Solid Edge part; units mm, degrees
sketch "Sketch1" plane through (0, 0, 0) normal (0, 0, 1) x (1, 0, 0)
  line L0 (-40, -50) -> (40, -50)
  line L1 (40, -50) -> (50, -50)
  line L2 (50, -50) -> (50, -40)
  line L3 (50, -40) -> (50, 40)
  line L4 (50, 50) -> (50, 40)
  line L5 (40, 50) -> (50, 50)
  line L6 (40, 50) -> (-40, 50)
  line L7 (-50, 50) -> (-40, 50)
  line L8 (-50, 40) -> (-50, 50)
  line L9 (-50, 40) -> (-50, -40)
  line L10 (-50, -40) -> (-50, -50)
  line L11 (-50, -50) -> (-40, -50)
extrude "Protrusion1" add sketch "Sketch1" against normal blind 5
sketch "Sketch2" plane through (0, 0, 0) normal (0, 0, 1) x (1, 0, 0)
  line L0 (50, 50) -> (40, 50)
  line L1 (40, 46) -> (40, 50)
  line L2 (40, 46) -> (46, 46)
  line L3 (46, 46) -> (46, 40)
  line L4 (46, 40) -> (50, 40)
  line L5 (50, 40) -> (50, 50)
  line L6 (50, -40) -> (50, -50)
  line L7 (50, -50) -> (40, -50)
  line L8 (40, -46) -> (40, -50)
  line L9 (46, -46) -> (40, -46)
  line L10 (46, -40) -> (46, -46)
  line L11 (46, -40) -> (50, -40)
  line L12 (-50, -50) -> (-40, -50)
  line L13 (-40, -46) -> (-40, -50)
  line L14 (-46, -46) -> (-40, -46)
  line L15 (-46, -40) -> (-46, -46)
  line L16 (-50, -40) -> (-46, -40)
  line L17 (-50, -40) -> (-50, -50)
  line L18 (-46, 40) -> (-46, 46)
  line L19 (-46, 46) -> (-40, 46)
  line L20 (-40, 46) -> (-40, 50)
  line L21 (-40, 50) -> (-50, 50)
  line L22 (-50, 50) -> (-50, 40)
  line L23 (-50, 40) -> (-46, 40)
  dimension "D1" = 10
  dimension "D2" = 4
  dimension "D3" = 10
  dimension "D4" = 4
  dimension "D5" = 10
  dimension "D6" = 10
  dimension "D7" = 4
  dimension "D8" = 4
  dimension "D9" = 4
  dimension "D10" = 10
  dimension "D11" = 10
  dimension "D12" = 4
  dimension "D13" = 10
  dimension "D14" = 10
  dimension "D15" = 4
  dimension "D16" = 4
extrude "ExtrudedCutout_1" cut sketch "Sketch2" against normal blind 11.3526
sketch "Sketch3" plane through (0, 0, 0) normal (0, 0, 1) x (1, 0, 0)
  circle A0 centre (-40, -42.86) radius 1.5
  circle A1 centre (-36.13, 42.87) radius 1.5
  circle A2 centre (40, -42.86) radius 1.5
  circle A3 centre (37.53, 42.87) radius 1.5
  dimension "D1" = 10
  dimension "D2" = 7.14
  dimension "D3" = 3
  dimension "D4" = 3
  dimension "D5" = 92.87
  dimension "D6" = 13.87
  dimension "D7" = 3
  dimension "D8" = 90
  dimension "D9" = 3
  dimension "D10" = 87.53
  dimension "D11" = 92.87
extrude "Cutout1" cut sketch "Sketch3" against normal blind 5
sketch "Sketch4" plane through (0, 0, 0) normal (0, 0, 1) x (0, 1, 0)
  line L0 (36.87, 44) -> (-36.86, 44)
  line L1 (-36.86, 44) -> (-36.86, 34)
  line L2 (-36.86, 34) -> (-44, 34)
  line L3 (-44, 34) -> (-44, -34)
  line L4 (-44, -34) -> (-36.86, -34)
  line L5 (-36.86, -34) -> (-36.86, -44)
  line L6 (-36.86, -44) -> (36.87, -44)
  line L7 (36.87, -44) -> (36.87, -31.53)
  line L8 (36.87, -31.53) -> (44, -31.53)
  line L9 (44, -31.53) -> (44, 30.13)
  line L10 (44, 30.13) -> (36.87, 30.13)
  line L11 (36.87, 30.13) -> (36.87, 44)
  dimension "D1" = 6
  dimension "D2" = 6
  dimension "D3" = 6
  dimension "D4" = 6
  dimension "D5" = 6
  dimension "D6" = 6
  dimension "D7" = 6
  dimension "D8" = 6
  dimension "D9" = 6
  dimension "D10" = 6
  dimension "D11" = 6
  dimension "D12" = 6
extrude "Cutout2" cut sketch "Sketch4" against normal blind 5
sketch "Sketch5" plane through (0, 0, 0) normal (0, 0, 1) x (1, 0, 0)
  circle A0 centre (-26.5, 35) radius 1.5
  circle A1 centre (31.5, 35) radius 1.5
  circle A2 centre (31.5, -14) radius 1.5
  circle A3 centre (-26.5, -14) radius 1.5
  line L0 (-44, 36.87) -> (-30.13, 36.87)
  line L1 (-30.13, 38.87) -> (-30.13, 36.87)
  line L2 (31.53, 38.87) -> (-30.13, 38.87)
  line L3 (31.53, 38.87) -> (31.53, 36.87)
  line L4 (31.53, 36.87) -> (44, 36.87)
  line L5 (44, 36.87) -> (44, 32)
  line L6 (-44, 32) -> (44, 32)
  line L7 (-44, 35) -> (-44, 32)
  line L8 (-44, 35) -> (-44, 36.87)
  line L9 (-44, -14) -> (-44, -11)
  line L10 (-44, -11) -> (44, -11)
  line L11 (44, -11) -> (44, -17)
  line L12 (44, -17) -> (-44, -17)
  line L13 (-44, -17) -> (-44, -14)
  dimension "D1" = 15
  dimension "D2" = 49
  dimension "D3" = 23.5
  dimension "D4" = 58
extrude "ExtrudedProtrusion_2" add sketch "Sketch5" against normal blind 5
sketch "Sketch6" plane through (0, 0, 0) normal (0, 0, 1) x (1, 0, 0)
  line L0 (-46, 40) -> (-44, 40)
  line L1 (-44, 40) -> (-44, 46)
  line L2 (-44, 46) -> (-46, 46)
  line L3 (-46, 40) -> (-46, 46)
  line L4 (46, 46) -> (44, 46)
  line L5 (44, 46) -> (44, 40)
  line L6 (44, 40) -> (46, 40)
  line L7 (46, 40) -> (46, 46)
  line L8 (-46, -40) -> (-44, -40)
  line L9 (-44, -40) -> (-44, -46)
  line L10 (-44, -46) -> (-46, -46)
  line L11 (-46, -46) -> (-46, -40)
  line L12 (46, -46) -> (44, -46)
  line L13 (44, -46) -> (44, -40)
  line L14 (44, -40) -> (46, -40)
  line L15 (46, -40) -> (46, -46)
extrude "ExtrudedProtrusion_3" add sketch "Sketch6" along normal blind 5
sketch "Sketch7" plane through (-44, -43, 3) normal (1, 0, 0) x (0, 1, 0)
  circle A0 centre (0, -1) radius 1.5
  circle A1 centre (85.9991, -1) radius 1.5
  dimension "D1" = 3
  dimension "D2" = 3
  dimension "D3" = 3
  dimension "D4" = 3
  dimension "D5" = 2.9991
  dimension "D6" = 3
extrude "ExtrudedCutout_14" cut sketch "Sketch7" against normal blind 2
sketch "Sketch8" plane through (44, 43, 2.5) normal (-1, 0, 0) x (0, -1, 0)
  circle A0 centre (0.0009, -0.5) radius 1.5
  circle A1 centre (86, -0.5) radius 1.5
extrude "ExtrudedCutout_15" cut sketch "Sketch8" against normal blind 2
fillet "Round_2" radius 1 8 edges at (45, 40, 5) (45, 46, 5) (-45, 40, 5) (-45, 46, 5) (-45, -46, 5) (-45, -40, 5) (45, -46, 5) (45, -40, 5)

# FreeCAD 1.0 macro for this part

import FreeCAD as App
import Part
import Sketcher
Q = App.Units.Quantity


def edges_at(feature, points):
    """Names of the edges that pass closest to the given points."""
    edges = feature.Shape.Edges
    near = lambda p: min(range(len(edges)), key=lambda i: edges[i].distToShape(Part.Vertex(*p))[0])
    return sorted({f"Edge{near(p) + 1}" for p in points})


def add_polygon(sketch, points):
    """Adds a closed chain of lines whose ends are joined by coincident constraints."""
    first, n = sketch.GeometryCount, len(points)
    for a, b in zip(points, points[1:] + points[:1]):
        sketch.addGeometry(Part.LineSegment(App.Vector(*a, 0), App.Vector(*b, 0)), False)
    for i in range(n):
        sketch.addConstraint(Sketcher.Constraint("Coincident", first + i, 2, first + (i + 1) % n, 1))

doc = App.newDocument("Part")
params = doc.addObject("Spreadsheet::Sheet", "Params")
for row, (alias, value) in enumerate([
    ("sketch1_width", "100 mm"),
    ("pad1_length", "5 mm"),
    ("pocket1_length", "11.3526 mm"),
    ("sketch3_diameter", "3 mm"),
    ("pocket2_length", "5 mm"),
    ("sketch4_width", "10 mm"),
    ("sketch4_width2", "68 mm"),
    ("sketch4_width3", "13.87 mm"),
    ("sketch4_width4", "12.47 mm"),
    ("sketch4_height", "73.73 mm"),
    ("pocket3_length", "5 mm"),
    ("sketch5_diameter", "3 mm"),
    ("sketch5_width", "88 mm"),
    ("sketch5_height", "2 mm"),
    ("sketch5_height2", "6 mm"),
    ("sketch5_width2", "13.87 mm"),
    ("pad2_length", "5 mm"),
    ("sketch6_width", "2 mm"),
    ("sketch6_height", "6 mm"),
    ("pad3_length", "5 mm"),
    ("sketch7_diameter", "3 mm"),
    ("pocket4_length", "2 mm"),
    ("sketch8_diameter", "3 mm"),
    ("pocket5_length", "2 mm"),
    ("fillet_radius", "1 mm"),
], start=1):
    params.set(f"A{row}", alias)
    params.set(f"B{row}", "=" + value)
    params.setAlias(f"B{row}", alias)

body = doc.addObject("PartDesign::Body", "Body")

# Sketch on XY plane
sketch1 = body.newObject("Sketcher::SketchObject", "Sketch")
sketch1.AttachmentSupport = (doc.getObject("XY_Plane"), [""])
sketch1.MapMode = "FlatFace"
add_polygon(sketch1, [(-50, -50), (50, -50), (50, 50), (-50, 50)])  # lines 0-3
sketch1.addConstraint(Sketcher.Constraint("Horizontal", 0))
sketch1.addConstraint(Sketcher.Constraint("Vertical", 1))
sketch1.addConstraint(Sketcher.Constraint("Horizontal", 2))
sketch1.addConstraint(Sketcher.Constraint("Vertical", 3))
sketch1.addConstraint(Sketcher.Constraint("Symmetric", 0, 2, 2, 2, -1, 1))
sketch1.addConstraint(Sketcher.Constraint("Equal", 2, 1))
sketch1.addConstraint(Sketcher.Constraint("DistanceX", 0, 1, 0, 2, Q("100 mm")))
sketch1.setExpression("Constraints[10]", "Params.sketch1_width")
pad1 = body.newObject("PartDesign::Pad", "Pad")
pad1.Profile = sketch1
pad1.setExpression("Length", "Params.pad1_length")
pad1.Reversed = True

# Sketch on XY plane
sketch2 = body.newObject("Sketcher::SketchObject", "Sketch001")
sketch2.AttachmentSupport = (doc.getObject("XY_Plane"), [""])
sketch2.MapMode = "FlatFace"
add_polygon(sketch2, [(50, 40), (50, 50), (40, 50), (40, 46), (46, 46), (46, 40)])  # lines 0-5
add_polygon(sketch2, [(50, -50), (50, -40), (46, -40), (46, -46), (40, -46), (40, -50)])  # lines 6-11
add_polygon(sketch2, [(-50, -40), (-50, -50), (-40, -50), (-40, -46), (-46, -46), (-46, -40)])  # lines 12-17
add_polygon(sketch2, [(-50, 40), (-46, 40), (-46, 46), (-40, 46), (-40, 50), (-50, 50)])  # lines 18-23
sketch2.addConstraint(Sketcher.Constraint("Vertical", 0))
sketch2.addConstraint(Sketcher.Constraint("Horizontal", 1))
sketch2.addConstraint(Sketcher.Constraint("Vertical", 2))
sketch2.addConstraint(Sketcher.Constraint("Horizontal", 3))
sketch2.addConstraint(Sketcher.Constraint("Vertical", 4))
sketch2.addConstraint(Sketcher.Constraint("Horizontal", 5))
sketch2.addConstraint(Sketcher.Constraint("Vertical", 6))
sketch2.addConstraint(Sketcher.Constraint("Horizontal", 7))
sketch2.addConstraint(Sketcher.Constraint("Vertical", 8))
sketch2.addConstraint(Sketcher.Constraint("Horizontal", 9))
sketch2.addConstraint(Sketcher.Constraint("Vertical", 10))
sketch2.addConstraint(Sketcher.Constraint("Horizontal", 11))
sketch2.addConstraint(Sketcher.Constraint("Vertical", 12))
sketch2.addConstraint(Sketcher.Constraint("Horizontal", 13))
sketch2.addConstraint(Sketcher.Constraint("Vertical", 14))
sketch2.addConstraint(Sketcher.Constraint("Horizontal", 15))
sketch2.addConstraint(Sketcher.Constraint("Vertical", 16))
sketch2.addConstraint(Sketcher.Constraint("Horizontal", 17))
sketch2.addConstraint(Sketcher.Constraint("Horizontal", 18))
sketch2.addConstraint(Sketcher.Constraint("Vertical", 19))
sketch2.addConstraint(Sketcher.Constraint("Horizontal", 20))
sketch2.addConstraint(Sketcher.Constraint("Vertical", 21))
sketch2.addConstraint(Sketcher.Constraint("Horizontal", 22))
sketch2.addConstraint(Sketcher.Constraint("Vertical", 23))
sketch2.addConstraint(Sketcher.Constraint("Symmetric", 0, 2, 12, 2, -1, 1))
sketch2.addConstraint(Sketcher.Constraint("Symmetric", 2, 2, 14, 2, -1, 1))
sketch2.addConstraint(Sketcher.Constraint("Symmetric", 4, 2, 16, 2, -1, 1))
sketch2.addConstraint(Sketcher.Constraint("Symmetric", 7, 2, 18, 2, -1, 1))
sketch2.addConstraint(Sketcher.Constraint("Symmetric", 9, 2, 20, 2, -1, 1))
sketch2.addConstraint(Sketcher.Constraint("Symmetric", 11, 2, 22, 2, -1, 1))
sketch2.addConstraint(Sketcher.Constraint("Symmetric", 11, 2, 12, 2, -2))
sketch2.addConstraint(Sketcher.Constraint("Symmetric", 9, 2, 14, 2, -2))
sketch2.addConstraint(Sketcher.Constraint("Symmetric", 7, 2, 16, 2, -2))
sketch2.addConstraint(Sketcher.Constraint("Equal", 22, 0))
sketch2.addConstraint(Sketcher.Constraint("Equal", 18, 2))
sketch2.addConstraint(Sketcher.Constraint("DistanceX", -1, 1, 0, 2, Q("50 mm")))
sketch2.addConstraint(Sketcher.Constraint("DistanceY", -1, 1, 0, 2, Q("50 mm")))
sketch2.addConstraint(Sketcher.Constraint("DistanceX", -1, 1, 1, 2, Q("40 mm")))
sketch2.addConstraint(Sketcher.Constraint("DistanceY", -1, 1, 2, 2, Q("46 mm")))
pocket1 = body.newObject("PartDesign::Pocket", "Pocket")
pocket1.Profile = sketch2
pocket1.setExpression("Length", "Params.pocket1_length")

# Sketch on XY plane
sketch3 = body.newObject("Sketcher::SketchObject", "Sketch002")
sketch3.AttachmentSupport = (doc.getObject("XY_Plane"), [""])
sketch3.MapMode = "FlatFace"
sketch3.addGeometry(Part.Circle(App.Vector(-40, -42.9, 0), App.Vector(0, 0, 1), 1.5), False)
sketch3.addGeometry(Part.Circle(App.Vector(-36.1, 42.9, 0), App.Vector(0, 0, 1), 1.5), False)
sketch3.addGeometry(Part.Circle(App.Vector(40, -42.9, 0), App.Vector(0, 0, 1), 1.5), False)
sketch3.addGeometry(Part.Circle(App.Vector(37.5, 42.9, 0), App.Vector(0, 0, 1), 1.5), False)
sketch3.addConstraint(Sketcher.Constraint("Equal", 0, 1))
sketch3.addConstraint(Sketcher.Constraint("Equal", 1, 2))
sketch3.addConstraint(Sketcher.Constraint("Equal", 2, 3))
sketch3.addConstraint(Sketcher.Constraint("Symmetric", 0, 3, 2, 3, -2))
sketch3.addConstraint(Sketcher.Constraint("Horizontal", 1, 3, 3, 3))
sketch3.addConstraint(Sketcher.Constraint("Diameter", 0, Q("3 mm")))
sketch3.addConstraint(Sketcher.Constraint("DistanceX", 0, 3, -1, 1, Q("40 mm")))
sketch3.addConstraint(Sketcher.Constraint("DistanceY", 0, 3, -1, 1, Q("42.86 mm")))
sketch3.addConstraint(Sketcher.Constraint("DistanceX", 1, 3, -1, 1, Q("36.13 mm")))
sketch3.addConstraint(Sketcher.Constraint("DistanceY", -1, 1, 1, 3, Q("42.87 mm")))
sketch3.addConstraint(Sketcher.Constraint("DistanceX", -1, 1, 3, 3, Q("37.53 mm")))
sketch3.setExpression("Constraints[5]", "Params.sketch3_diameter")
pocket2 = body.newObject("PartDesign::Pocket", "Pocket001")
pocket2.Profile = sketch3
pocket2.setExpression("Length", "Params.pocket2_length")

# Sketch on XY plane
sketch4 = body.newObject("Sketcher::SketchObject", "Sketch003")
sketch4.AttachmentSupport = (doc.getObject("XY_Plane"), [""])
sketch4.MapMode = "FlatFace"
add_polygon(sketch4, [(-30, 37), (-44, 37), (-44, -37), (-34, -37), (-34, -44), (34, -44), (34, -37), (44, -37), (44, 37), (32, 37), (32, 44), (-30, 44)])  # lines 0-11
sketch4.addConstraint(Sketcher.Constraint("Horizontal", 0))
sketch4.addConstraint(Sketcher.Constraint("Vertical", 1))
sketch4.addConstraint(Sketcher.Constraint("Horizontal", 2))
sketch4.addConstraint(Sketcher.Constraint("Vertical", 3))
sketch4.addConstraint(Sketcher.Constraint("Horizontal", 4))
sketch4.addConstraint(Sketcher.Constraint("Vertical", 5))
sketch4.addConstraint(Sketcher.Constraint("Horizontal", 6))
sketch4.addConstraint(Sketcher.Constraint("Vertical", 7))
sketch4.addConstraint(Sketcher.Constraint("Horizontal", 8))
sketch4.addConstraint(Sketcher.Constraint("Vertical", 9))
sketch4.addConstraint(Sketcher.Constraint("Horizontal", 10))
sketch4.addConstraint(Sketcher.Constraint("Vertical", 11))
sketch4.addConstraint(Sketcher.Constraint("Symmetric", 2, 2, 5, 2, -2))
sketch4.addConstraint(Sketcher.Constraint("Symmetric", 0, 2, 7, 2, -2))
sketch4.addConstraint(Sketcher.Constraint("DistanceX", 2, 1, 2, 2, Q("10 mm")))
sketch4.addConstraint(Sketcher.Constraint("DistanceX", 4, 1, 4, 2, Q("68 mm")))
sketch4.addConstraint(Sketcher.Constraint("DistanceY", 3, 2, -1, 1, Q("44 mm")))
sketch4.addConstraint(Sketcher.Constraint("DistanceY", -1, 1, 9, 2, Q("44 mm")))
sketch4.addConstraint(Sketcher.Constraint("DistanceX", 0, 2, 0, 1, Q("13.87 mm")))
sketch4.addConstraint(Sketcher.Constraint("DistanceX", 8, 2, 8, 1, Q("12.47 mm")))
sketch4.addConstraint(Sketcher.Constraint("DistanceY", 1, 2, 1, 1, Q("73.73 mm")))
sketch4.addConstraint(Sketcher.Constraint("DistanceY", 3, 2, 3, 1, Q("7.14 mm")))
sketch4.setExpression("Constraints[26]", "Params.sketch4_width")
sketch4.setExpression("Constraints[27]", "Params.sketch4_width2")
sketch4.setExpression("Constraints[30]", "Params.sketch4_width3")
sketch4.setExpression("Constraints[31]", "Params.sketch4_width4")
sketch4.setExpression("Constraints[32]", "Params.sketch4_height")
pocket3 = body.newObject("PartDesign::Pocket", "Pocket002")
pocket3.Profile = sketch4
pocket3.setExpression("Length", "Params.pocket3_length")

# Sketch on XY plane
sketch5 = body.newObject("Sketcher::SketchObject", "Sketch004")
sketch5.AttachmentSupport = (doc.getObject("XY_Plane"), [""])
sketch5.MapMode = "FlatFace"
add_polygon(sketch5, [(-30.1, 36.9), (-44, 36.9), (-44, 32), (44, 32), (44, 36.9), (31.5, 36.9), (31.5, 38.9), (-30.1, 38.9)])  # lines 0-7
sketch5.addGeometry(Part.Circle(App.Vector(-26.5, 35, 0), App.Vector(0, 0, 1), 1.5), False)  # 8
sketch5.addGeometry(Part.Circle(App.Vector(31.5, 35, 0), App.Vector(0, 0, 1), 1.5), False)  # 9
add_polygon(sketch5, [(-44, -11), (-44, -17), (44, -17), (44, -11)])  # lines 10-13
sketch5.addGeometry(Part.Circle(App.Vector(-26.5, -14, 0), App.Vector(0, 0, 1), 1.5), False)  # 14
sketch5.addGeometry(Part.Circle(App.Vector(31.5, -14, 0), App.Vector(0, 0, 1), 1.5), False)  # 15
sketch5.addConstraint(Sketcher.Constraint("Horizontal", 0))
sketch5.addConstraint(Sketcher.Constraint("Vertical", 1))
sketch5.addConstraint(Sketcher.Constraint("Horizontal", 2))
sketch5.addConstraint(Sketcher.Constraint("Vertical", 3))
sketch5.addConstraint(Sketcher.Constraint("Horizontal", 4))
sketch5.addConstraint(Sketcher.Constraint("Vertical", 5))
sketch5.addConstraint(Sketcher.Constraint("Horizontal", 6))
sketch5.addConstraint(Sketcher.Constraint("Vertical", 7))
sketch5.addConstraint(Sketcher.Constraint("Vertical", 10))
sketch5.addConstraint(Sketcher.Constraint("Horizontal", 11))
sketch5.addConstraint(Sketcher.Constraint("Vertical", 12))
sketch5.addConstraint(Sketcher.Constraint("Horizontal", 13))
sketch5.addConstraint(Sketcher.Constraint("Equal", 8, 9))
sketch5.addConstraint(Sketcher.Constraint("Equal", 9, 14))
sketch5.addConstraint(Sketcher.Constraint("Equal", 14, 15))
sketch5.addConstraint(Sketcher.Constraint("Symmetric", 0, 2, 3, 2, -2))
sketch5.addConstraint(Sketcher.Constraint("Horizontal", 8, 3, 9, 3))
sketch5.addConstraint(Sketcher.Constraint("Horizontal", 14, 3, 15, 3))
sketch5.addConstraint(Sketcher.Constraint("Vertical", 8, 3, 14, 3))
sketch5.addConstraint(Sketcher.Constraint("Vertical", 9, 3, 15, 3))
sketch5.addConstraint(Sketcher.Constraint("Vertical", 1, 2, 10, 2))
sketch5.addConstraint(Sketcher.Constraint("Vertical", 3, 2, 11, 2))
sketch5.addConstraint(Sketcher.Constraint("Diameter", 8, Q("3 mm")))
sketch5.addConstraint(Sketcher.Constraint("DistanceX", 8, 3, -1, 1, Q("26.5 mm")))
sketch5.addConstraint(Sketcher.Constraint("DistanceX", 2, 1, 2, 2, Q("88 mm")))
sketch5.addConstraint(Sketcher.Constraint("DistanceY", 5, 1, 5, 2, Q("2 mm")))
sketch5.addConstraint(Sketcher.Constraint("DistanceY", 10, 2, 10, 1, Q("6 mm")))
sketch5.addConstraint(Sketcher.Constraint("DistanceY", -1, 1, 8, 3, Q("35 mm")))
sketch5.addConstraint(Sketcher.Constraint("DistanceY", 14, 3, -1, 1, Q("14 mm")))
sketch5.addConstraint(Sketcher.Constraint("DistanceY", -1, 1, 1, 2, Q("32 mm")))
sketch5.addConstraint(Sketcher.Constraint("DistanceY", 10, 2, -1, 1, Q("17 mm")))
sketch5.addConstraint(Sketcher.Constraint("DistanceX", 8, 3, 9, 3, Q("58 mm")))
sketch5.addConstraint(Sketcher.Constraint("DistanceX", 0, 2, 0, 1, Q("13.87 mm")))
sketch5.addConstraint(Sketcher.Constraint("DistanceX", 4, 2, 4, 1, Q("12.47 mm")))
sketch5.addConstraint(Sketcher.Constraint("DistanceY", 1, 2, 1, 1, Q("4.87 mm")))
sketch5.setExpression("Constraints[34]", "Params.sketch5_diameter")
sketch5.setExpression("Constraints[36]", "Params.sketch5_width")
sketch5.setExpression("Constraints[37]", "Params.sketch5_height")
sketch5.setExpression("Constraints[38]", "Params.sketch5_height2")
sketch5.setExpression("Constraints[44]", "Params.sketch5_width2")
pad2 = body.newObject("PartDesign::Pad", "Pad001")
pad2.Profile = sketch5
pad2.setExpression("Length", "Params.pad2_length")
pad2.Reversed = True

# Sketch on XY plane
sketch6 = body.newObject("Sketcher::SketchObject", "Sketch005")
sketch6.AttachmentSupport = (doc.getObject("XY_Plane"), [""])
sketch6.MapMode = "FlatFace"
add_polygon(sketch6, [(-46, 46), (-46, 40), (-44, 40), (-44, 46)])  # lines 0-3
add_polygon(sketch6, [(46, 40), (46, 46), (44, 46), (44, 40)])  # lines 4-7
add_polygon(sketch6, [(-44, -40), (-46, -40), (-46, -46), (-44, -46)])  # lines 8-11
add_polygon(sketch6, [(44, -46), (46, -46), (46, -40), (44, -40)])  # lines 12-15
sketch6.addConstraint(Sketcher.Constraint("Vertical", 0))
sketch6.addConstraint(Sketcher.Constraint("Horizontal", 1))
sketch6.addConstraint(Sketcher.Constraint("Vertical", 2))
sketch6.addConstraint(Sketcher.Constraint("Horizontal", 3))
sketch6.addConstraint(Sketcher.Constraint("Vertical", 4))
sketch6.addConstraint(Sketcher.Constraint("Horizontal", 5))
sketch6.addConstraint(Sketcher.Constraint("Vertical", 6))
sketch6.addConstraint(Sketcher.Constraint("Horizontal", 7))
sketch6.addConstraint(Sketcher.Constraint("Horizontal", 8))
sketch6.addConstraint(Sketcher.Constraint("Vertical", 9))
sketch6.addConstraint(Sketcher.Constraint("Horizontal", 10))
sketch6.addConstraint(Sketcher.Constraint("Vertical", 11))
sketch6.addConstraint(Sketcher.Constraint("Horizontal", 12))
sketch6.addConstraint(Sketcher.Constraint("Vertical", 13))
sketch6.addConstraint(Sketcher.Constraint("Horizontal", 14))
sketch6.addConstraint(Sketcher.Constraint("Vertical", 15))
sketch6.addConstraint(Sketcher.Constraint("Symmetric", 7, 2, 8, 2, -1, 1))
sketch6.addConstraint(Sketcher.Constraint("Symmetric", 5, 2, 10, 2, -1, 1))
sketch6.addConstraint(Sketcher.Constraint("Symmetric", 3, 2, 12, 2, -1, 1))
sketch6.addConstraint(Sketcher.Constraint("Symmetric", 1, 2, 14, 2, -1, 1))
sketch6.addConstraint(Sketcher.Constraint("Symmetric", 3, 2, 4, 2, -2))
sketch6.addConstraint(Sketcher.Constraint("Symmetric", 1, 2, 6, 2, -2))
sketch6.addConstraint(Sketcher.Constraint("DistanceX", 1, 1, 1, 2, Q("2 mm")))
sketch6.addConstraint(Sketcher.Constraint("DistanceY", 0, 2, 0, 1, Q("6 mm")))
sketch6.addConstraint(Sketcher.Constraint("DistanceX", 0, 2, -1, 1, Q("46 mm")))
sketch6.addConstraint(Sketcher.Constraint("DistanceY", -1, 1, 0, 2, Q("40 mm")))
sketch6.setExpression("Constraints[38]", "Params.sketch6_width")
sketch6.setExpression("Constraints[39]", "Params.sketch6_height")
pad3 = body.newObject("PartDesign::Pad", "Pad002")
pad3.Profile = sketch6
pad3.setExpression("Length", "Params.pad3_length")

# Sketch on YZ plane
sketch7 = body.newObject("Sketcher::SketchObject", "Sketch006")
sketch7.AttachmentSupport = (doc.getObject("YZ_Plane"), [""])
sketch7.MapMode = "FlatFace"
sketch7.AttachmentOffset = App.Placement(App.Vector(0, 0, -44), App.Rotation())
sketch7.addGeometry(Part.Circle(App.Vector(-43, 2, 0), App.Vector(0, 0, 1), 1.5), False)
sketch7.addGeometry(Part.Circle(App.Vector(43, 2, 0), App.Vector(0, 0, 1), 1.5), False)
sketch7.addConstraint(Sketcher.Constraint("Equal", 0, 1))
sketch7.addConstraint(Sketcher.Constraint("Horizontal", 0, 3, 1, 3))
sketch7.addConstraint(Sketcher.Constraint("Diameter", 0, Q("3 mm")))
sketch7.addConstraint(Sketcher.Constraint("DistanceX", 0, 3, -1, 1, Q("43 mm")))
sketch7.addConstraint(Sketcher.Constraint("DistanceY", -1, 1, 0, 3, Q("2 mm")))
sketch7.addConstraint(Sketcher.Constraint("DistanceX", -1, 1, 1, 3, Q("42.999 mm")))
sketch7.setExpression("Constraints[2]", "Params.sketch7_diameter")
pocket4 = body.newObject("PartDesign::Pocket", "Pocket003")
pocket4.Profile = sketch7
pocket4.setExpression("Length", "Params.pocket4_length")

# Sketch on YZ plane
sketch8 = body.newObject("Sketcher::SketchObject", "Sketch007")
sketch8.AttachmentSupport = (doc.getObject("YZ_Plane"), [""])
sketch8.MapMode = "FlatFace"
sketch8.AttachmentOffset = App.Placement(App.Vector(0, 0, 44), App.Rotation())
sketch8.addGeometry(Part.Circle(App.Vector(43, 2, 0), App.Vector(0, 0, 1), 1.5), False)
sketch8.addGeometry(Part.Circle(App.Vector(-43, 2, 0), App.Vector(0, 0, 1), 1.5), False)
sketch8.addConstraint(Sketcher.Constraint("Equal", 0, 1))
sketch8.addConstraint(Sketcher.Constraint("Horizontal", 0, 3, 1, 3))
sketch8.addConstraint(Sketcher.Constraint("Diameter", 0, Q("3 mm")))
sketch8.addConstraint(Sketcher.Constraint("DistanceY", -1, 1, 0, 3, Q("2 mm")))
sketch8.addConstraint(Sketcher.Constraint("DistanceX", 1, 3, -1, 1, Q("43 mm")))
sketch8.addConstraint(Sketcher.Constraint("DistanceX", -1, 1, 0, 3, Q("42.999 mm")))
sketch8.setExpression("Constraints[2]", "Params.sketch8_diameter")
pocket5 = body.newObject("PartDesign::Pocket", "Pocket004")
pocket5.Profile = sketch8
pocket5.setExpression("Length", "Params.pocket5_length")
pocket5.Reversed = True
doc.recompute()

fillet = body.newObject("PartDesign::Fillet", "Fillet")
fillet.Base = (pocket5, edges_at(pocket5, [
    (45, 40, 5),
    (45, 46, 5),
    (-45, 40, 5),
    (-45, 46, 5),
    (-45, -46, 5),
    (-45, -40, 5),
    (45, -46, 5),
    (45, -40, 5),
]))
fillet.setExpression("Radius", "Params.fillet_radius")

doc.recompute()
